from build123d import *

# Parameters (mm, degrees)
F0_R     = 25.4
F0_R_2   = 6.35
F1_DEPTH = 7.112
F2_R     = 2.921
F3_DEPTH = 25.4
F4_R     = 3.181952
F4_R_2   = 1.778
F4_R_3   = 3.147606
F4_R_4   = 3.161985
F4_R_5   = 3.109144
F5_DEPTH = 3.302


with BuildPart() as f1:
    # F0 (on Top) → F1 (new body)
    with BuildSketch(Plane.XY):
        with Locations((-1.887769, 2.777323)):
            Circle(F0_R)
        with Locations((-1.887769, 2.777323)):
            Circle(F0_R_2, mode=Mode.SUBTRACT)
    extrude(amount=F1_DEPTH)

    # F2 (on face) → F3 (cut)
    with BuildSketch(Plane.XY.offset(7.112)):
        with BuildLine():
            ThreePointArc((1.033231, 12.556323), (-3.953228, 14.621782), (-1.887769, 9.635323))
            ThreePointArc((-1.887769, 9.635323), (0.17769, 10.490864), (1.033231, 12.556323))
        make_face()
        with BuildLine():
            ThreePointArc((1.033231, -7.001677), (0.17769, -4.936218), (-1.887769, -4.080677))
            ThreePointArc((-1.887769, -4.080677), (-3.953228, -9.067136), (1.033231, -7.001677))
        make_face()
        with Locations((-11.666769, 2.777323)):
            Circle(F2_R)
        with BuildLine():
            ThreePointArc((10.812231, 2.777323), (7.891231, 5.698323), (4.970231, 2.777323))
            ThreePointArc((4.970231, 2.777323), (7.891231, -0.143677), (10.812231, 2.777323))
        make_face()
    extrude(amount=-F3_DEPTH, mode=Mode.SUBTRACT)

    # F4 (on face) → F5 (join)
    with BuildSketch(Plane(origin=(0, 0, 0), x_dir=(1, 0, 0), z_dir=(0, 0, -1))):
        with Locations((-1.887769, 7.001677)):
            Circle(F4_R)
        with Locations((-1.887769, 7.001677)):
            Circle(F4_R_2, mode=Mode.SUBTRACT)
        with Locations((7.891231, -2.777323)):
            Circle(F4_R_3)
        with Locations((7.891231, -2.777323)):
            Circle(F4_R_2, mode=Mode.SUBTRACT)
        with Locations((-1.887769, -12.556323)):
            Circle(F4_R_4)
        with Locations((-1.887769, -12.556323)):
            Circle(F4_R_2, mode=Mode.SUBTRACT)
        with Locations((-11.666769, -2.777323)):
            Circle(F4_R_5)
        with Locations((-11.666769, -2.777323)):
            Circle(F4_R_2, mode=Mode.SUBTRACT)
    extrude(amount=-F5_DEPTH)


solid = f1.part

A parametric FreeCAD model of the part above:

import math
import FreeCAD as App
import Part
import Sketcher
from FreeCAD import Vector
Q = App.Units.Quantity

doc = App.newDocument("Part")
body = doc.addObject("PartDesign::Body", "Body")

# Sketch on XY plane
sketch1 = doc.addObject("Sketcher::SketchObject", "Sketch")
body.addObject(sketch1)
sketch1.AttachmentSupport = (doc.XY_Plane, [""])
sketch1.MapMode = "FlatFace"
sketch1.addGeometry(Part.Circle(Vector(-2, 3, 0), Vector(0, 0, 1), 25), False)
sketch1.addGeometry(Part.Circle(Vector(-2, 3, 0), Vector(0, 0, 1), 6), False)
sketch1.addConstraint(Sketcher.Constraint("Coincident", 1, 3, 0, 3))
sketch1.addConstraint(Sketcher.Constraint("Diameter", 0, Q("2 in")))
sketch1.addConstraint(Sketcher.Constraint("Diameter", 1, Q("0.5 in")))
sketch1.addConstraint(Sketcher.Constraint("DistanceX", 0, 3, -1, 1, 1.887769))
sketch1.addConstraint(Sketcher.Constraint("DistanceY", -1, 1, 0, 3, 2.777323))
pad1 = doc.addObject("PartDesign::Pad", "Pad")
body.addObject(pad1)
pad1.Profile = sketch1
pad1.Length = Q("0.28 in")

# Sketch on XY plane
sketch2 = doc.addObject("Sketcher::SketchObject", "Sketch001")
body.addObject(sketch2)
sketch2.AttachmentSupport = (doc.XY_Plane, [""])
sketch2.MapMode = "FlatFace"
sketch2.AttachmentOffset = App.Placement(Vector(0, 0, 0.28 * 25.4), App.Rotation())
sketch2.addGeometry(Part.ArcOfCircle(Part.Circle(Vector(-1.9, 12.6, 0), Vector(0, 0, 1), 2.9), math.radians(0), math.radians(270)), False)
sketch2.addGeometry(Part.ArcOfCircle(Part.Circle(Vector(-1.9, 12.6, 0), Vector(0, 0, 1), 2.9), math.radians(-90), math.radians(0)), False)
sketch2.addGeometry(Part.ArcOfCircle(Part.Circle(Vector(-1.9, -7, 0), Vector(0, 0, 1), 2.9), math.radians(0), math.radians(90)), False)
sketch2.addGeometry(Part.ArcOfCircle(Part.Circle(Vector(-1.9, -7, 0), Vector(0, 0, 1), 2.9), math.radians(90), math.radians(360)), False)
sketch2.addGeometry(Part.Circle(Vector(-11.7, 2.8, 0), Vector(0, 0, 1), 2.9), False)
sketch2.addGeometry(Part.Circle(Vector(7.9, 2.8, 0), Vector(0, 0, 1), 2.9), False)
sketch2.addConstraint(Sketcher.Constraint("Tangent", 0, 1, 1, 2))
sketch2.addConstraint(Sketcher.Constraint("Coincident", 1, 1, 0, 2))
sketch2.addConstraint(Sketcher.Constraint("Tangent", 2, 1, 3, 2))
sketch2.addConstraint(Sketcher.Constraint("Coincident", 3, 1, 2, 2))
sketch2.addConstraint(Sketcher.Constraint("Equal", 1, 2))
sketch2.addConstraint(Sketcher.Constraint("Equal", 3, 4))
sketch2.addConstraint(Sketcher.Constraint("Equal", 4, 5))
sketch2.addConstraint(Sketcher.Constraint("Horizontal", 4, 3, 5, 3))
sketch2.addConstraint(Sketcher.Constraint("Horizontal", 1, 3, 0, 1))
sketch2.addConstraint(Sketcher.Constraint("Horizontal", 3, 3, 2, 1))
sketch2.addConstraint(Sketcher.Constraint("Vertical", 1, 3, 2, 3))
sketch2.addConstraint(Sketcher.Constraint("Vertical", 3, 3, 1, 1))
sketch2.addConstraint(Sketcher.Constraint("Vertical", 1, 1, 3, 1))
sketch2.addConstraint(Sketcher.Constraint("Diameter", 4, Q("0.23 in")))
sketch2.addConstraint(Sketcher.Constraint("DistanceX", 4, 3, 0, 1, Q("0.5 in")))
sketch2.addConstraint(Sketcher.Constraint("DistanceY", 2, 3, 1, 3, Q("0.77 in")))
sketch2.addConstraint(Sketcher.Constraint("DistanceX", 4, 3, 5, 3, Q("0.77 in")))
sketch2.addConstraint(Sketcher.Constraint("DistanceY", 4, 3, 1, 1, Q("0.27 in")))
sketch2.addConstraint(Sketcher.Constraint("DistanceX", 0, 3, -1, 1, 1.887769))
sketch2.addConstraint(Sketcher.Constraint("DistanceY", -1, 1, 0, 3, 12.556323))
pocket1 = doc.addObject("PartDesign::Pocket", "Pocket")
body.addObject(pocket1)
pocket1.Profile = sketch2
pocket1.Length = Q("1 in")

# Sketch on XY plane
sketch3 = doc.addObject("Sketcher::SketchObject", "Sketch002")
body.addObject(sketch3)
sketch3.AttachmentSupport = (doc.XY_Plane, [""])
sketch3.MapMode = "FlatFace"
sketch3.addGeometry(Part.Circle(Vector(-1.9, -7, 0), Vector(0, 0, 1), 3.2), False)
sketch3.addGeometry(Part.Circle(Vector(-1.9, -7, 0), Vector(0, 0, 1), 1.8), False)
sketch3.addGeometry(Part.Circle(Vector(7.9, 2.8, 0), Vector(0, 0, 1), 3.1), False)
sketch3.addGeometry(Part.Circle(Vector(7.9, 2.8, 0), Vector(0, 0, 1), 1.8), False)
sketch3.addGeometry(Part.Circle(Vector(-1.9, 12.6, 0), Vector(0, 0, 1), 3.2), False)
sketch3.addGeometry(Part.Circle(Vector(-1.9, 12.6, 0), Vector(0, 0, 1), 1.8), False)
sketch3.addGeometry(Part.Circle(Vector(-11.7, 2.8, 0), Vector(0, 0, 1), 3.1), False)
sketch3.addGeometry(Part.Circle(Vector(-11.7, 2.8, 0), Vector(0, 0, 1), 1.8), False)
sketch3.addConstraint(Sketcher.Constraint("Coincident", 1, 3, 0, 3))
sketch3.addConstraint(Sketcher.Constraint("Coincident", 3, 3, 2, 3))
sketch3.addConstraint(Sketcher.Constraint("Coincident", 5, 3, 4, 3))
sketch3.addConstraint(Sketcher.Constraint("Coincident", 7, 3, 6, 3))
sketch3.addConstraint(Sketcher.Constraint("Equal", 1, 3))
sketch3.addConstraint(Sketcher.Constraint("Equal", 3, 5))
sketch3.addConstraint(Sketcher.Constraint("Equal", 5, 7))
sketch3.addConstraint(Sketcher.Constraint("Horizontal", 3, 3, 6, 3))
sketch3.addConstraint(Sketcher.Constraint("Vertical", 1, 3, 4, 3))
sketch3.addConstraint(Sketcher.Constraint("Diameter", 1, Q("0.14 in")))
sketch3.addConstraint(Sketcher.Constraint("DistanceY", 0, 3, 4, 3, Q("0.77 in")))
sketch3.addConstraint(Sketcher.Constraint("DistanceX", 6, 3, 2, 3, Q("0.77 in")))
sketch3.addConstraint(Sketcher.Constraint("Diameter", 4, 6.32397))
sketch3.addConstraint(Sketcher.Constraint("Diameter", 6, 6.218288))
sketch3.addConstraint(Sketcher.Constraint("DistanceX", 0, 3, 2, 3, Q("0.385 in")))
sketch3.addConstraint(Sketcher.Constraint("DistanceY", 0, 3, 2, 3, Q("0.385 in")))
sketch3.addConstraint(Sketcher.Constraint("Diameter", 0, 6.363904))
sketch3.addConstraint(Sketcher.Constraint("Diameter", 2, 6.295212))
sketch3.addConstraint(Sketcher.Constraint("DistanceX", 0, 3, -1, 1, 1.887769))
sketch3.addConstraint(Sketcher.Constraint("DistanceY", 0, 3, -1, 1, 7.001677))
pad2 = doc.addObject("PartDesign::Pad", "Pad001")
body.addObject(pad2)
pad2.Profile = sketch3
pad2.Length = Q("0.13 in")

doc.recompute()
